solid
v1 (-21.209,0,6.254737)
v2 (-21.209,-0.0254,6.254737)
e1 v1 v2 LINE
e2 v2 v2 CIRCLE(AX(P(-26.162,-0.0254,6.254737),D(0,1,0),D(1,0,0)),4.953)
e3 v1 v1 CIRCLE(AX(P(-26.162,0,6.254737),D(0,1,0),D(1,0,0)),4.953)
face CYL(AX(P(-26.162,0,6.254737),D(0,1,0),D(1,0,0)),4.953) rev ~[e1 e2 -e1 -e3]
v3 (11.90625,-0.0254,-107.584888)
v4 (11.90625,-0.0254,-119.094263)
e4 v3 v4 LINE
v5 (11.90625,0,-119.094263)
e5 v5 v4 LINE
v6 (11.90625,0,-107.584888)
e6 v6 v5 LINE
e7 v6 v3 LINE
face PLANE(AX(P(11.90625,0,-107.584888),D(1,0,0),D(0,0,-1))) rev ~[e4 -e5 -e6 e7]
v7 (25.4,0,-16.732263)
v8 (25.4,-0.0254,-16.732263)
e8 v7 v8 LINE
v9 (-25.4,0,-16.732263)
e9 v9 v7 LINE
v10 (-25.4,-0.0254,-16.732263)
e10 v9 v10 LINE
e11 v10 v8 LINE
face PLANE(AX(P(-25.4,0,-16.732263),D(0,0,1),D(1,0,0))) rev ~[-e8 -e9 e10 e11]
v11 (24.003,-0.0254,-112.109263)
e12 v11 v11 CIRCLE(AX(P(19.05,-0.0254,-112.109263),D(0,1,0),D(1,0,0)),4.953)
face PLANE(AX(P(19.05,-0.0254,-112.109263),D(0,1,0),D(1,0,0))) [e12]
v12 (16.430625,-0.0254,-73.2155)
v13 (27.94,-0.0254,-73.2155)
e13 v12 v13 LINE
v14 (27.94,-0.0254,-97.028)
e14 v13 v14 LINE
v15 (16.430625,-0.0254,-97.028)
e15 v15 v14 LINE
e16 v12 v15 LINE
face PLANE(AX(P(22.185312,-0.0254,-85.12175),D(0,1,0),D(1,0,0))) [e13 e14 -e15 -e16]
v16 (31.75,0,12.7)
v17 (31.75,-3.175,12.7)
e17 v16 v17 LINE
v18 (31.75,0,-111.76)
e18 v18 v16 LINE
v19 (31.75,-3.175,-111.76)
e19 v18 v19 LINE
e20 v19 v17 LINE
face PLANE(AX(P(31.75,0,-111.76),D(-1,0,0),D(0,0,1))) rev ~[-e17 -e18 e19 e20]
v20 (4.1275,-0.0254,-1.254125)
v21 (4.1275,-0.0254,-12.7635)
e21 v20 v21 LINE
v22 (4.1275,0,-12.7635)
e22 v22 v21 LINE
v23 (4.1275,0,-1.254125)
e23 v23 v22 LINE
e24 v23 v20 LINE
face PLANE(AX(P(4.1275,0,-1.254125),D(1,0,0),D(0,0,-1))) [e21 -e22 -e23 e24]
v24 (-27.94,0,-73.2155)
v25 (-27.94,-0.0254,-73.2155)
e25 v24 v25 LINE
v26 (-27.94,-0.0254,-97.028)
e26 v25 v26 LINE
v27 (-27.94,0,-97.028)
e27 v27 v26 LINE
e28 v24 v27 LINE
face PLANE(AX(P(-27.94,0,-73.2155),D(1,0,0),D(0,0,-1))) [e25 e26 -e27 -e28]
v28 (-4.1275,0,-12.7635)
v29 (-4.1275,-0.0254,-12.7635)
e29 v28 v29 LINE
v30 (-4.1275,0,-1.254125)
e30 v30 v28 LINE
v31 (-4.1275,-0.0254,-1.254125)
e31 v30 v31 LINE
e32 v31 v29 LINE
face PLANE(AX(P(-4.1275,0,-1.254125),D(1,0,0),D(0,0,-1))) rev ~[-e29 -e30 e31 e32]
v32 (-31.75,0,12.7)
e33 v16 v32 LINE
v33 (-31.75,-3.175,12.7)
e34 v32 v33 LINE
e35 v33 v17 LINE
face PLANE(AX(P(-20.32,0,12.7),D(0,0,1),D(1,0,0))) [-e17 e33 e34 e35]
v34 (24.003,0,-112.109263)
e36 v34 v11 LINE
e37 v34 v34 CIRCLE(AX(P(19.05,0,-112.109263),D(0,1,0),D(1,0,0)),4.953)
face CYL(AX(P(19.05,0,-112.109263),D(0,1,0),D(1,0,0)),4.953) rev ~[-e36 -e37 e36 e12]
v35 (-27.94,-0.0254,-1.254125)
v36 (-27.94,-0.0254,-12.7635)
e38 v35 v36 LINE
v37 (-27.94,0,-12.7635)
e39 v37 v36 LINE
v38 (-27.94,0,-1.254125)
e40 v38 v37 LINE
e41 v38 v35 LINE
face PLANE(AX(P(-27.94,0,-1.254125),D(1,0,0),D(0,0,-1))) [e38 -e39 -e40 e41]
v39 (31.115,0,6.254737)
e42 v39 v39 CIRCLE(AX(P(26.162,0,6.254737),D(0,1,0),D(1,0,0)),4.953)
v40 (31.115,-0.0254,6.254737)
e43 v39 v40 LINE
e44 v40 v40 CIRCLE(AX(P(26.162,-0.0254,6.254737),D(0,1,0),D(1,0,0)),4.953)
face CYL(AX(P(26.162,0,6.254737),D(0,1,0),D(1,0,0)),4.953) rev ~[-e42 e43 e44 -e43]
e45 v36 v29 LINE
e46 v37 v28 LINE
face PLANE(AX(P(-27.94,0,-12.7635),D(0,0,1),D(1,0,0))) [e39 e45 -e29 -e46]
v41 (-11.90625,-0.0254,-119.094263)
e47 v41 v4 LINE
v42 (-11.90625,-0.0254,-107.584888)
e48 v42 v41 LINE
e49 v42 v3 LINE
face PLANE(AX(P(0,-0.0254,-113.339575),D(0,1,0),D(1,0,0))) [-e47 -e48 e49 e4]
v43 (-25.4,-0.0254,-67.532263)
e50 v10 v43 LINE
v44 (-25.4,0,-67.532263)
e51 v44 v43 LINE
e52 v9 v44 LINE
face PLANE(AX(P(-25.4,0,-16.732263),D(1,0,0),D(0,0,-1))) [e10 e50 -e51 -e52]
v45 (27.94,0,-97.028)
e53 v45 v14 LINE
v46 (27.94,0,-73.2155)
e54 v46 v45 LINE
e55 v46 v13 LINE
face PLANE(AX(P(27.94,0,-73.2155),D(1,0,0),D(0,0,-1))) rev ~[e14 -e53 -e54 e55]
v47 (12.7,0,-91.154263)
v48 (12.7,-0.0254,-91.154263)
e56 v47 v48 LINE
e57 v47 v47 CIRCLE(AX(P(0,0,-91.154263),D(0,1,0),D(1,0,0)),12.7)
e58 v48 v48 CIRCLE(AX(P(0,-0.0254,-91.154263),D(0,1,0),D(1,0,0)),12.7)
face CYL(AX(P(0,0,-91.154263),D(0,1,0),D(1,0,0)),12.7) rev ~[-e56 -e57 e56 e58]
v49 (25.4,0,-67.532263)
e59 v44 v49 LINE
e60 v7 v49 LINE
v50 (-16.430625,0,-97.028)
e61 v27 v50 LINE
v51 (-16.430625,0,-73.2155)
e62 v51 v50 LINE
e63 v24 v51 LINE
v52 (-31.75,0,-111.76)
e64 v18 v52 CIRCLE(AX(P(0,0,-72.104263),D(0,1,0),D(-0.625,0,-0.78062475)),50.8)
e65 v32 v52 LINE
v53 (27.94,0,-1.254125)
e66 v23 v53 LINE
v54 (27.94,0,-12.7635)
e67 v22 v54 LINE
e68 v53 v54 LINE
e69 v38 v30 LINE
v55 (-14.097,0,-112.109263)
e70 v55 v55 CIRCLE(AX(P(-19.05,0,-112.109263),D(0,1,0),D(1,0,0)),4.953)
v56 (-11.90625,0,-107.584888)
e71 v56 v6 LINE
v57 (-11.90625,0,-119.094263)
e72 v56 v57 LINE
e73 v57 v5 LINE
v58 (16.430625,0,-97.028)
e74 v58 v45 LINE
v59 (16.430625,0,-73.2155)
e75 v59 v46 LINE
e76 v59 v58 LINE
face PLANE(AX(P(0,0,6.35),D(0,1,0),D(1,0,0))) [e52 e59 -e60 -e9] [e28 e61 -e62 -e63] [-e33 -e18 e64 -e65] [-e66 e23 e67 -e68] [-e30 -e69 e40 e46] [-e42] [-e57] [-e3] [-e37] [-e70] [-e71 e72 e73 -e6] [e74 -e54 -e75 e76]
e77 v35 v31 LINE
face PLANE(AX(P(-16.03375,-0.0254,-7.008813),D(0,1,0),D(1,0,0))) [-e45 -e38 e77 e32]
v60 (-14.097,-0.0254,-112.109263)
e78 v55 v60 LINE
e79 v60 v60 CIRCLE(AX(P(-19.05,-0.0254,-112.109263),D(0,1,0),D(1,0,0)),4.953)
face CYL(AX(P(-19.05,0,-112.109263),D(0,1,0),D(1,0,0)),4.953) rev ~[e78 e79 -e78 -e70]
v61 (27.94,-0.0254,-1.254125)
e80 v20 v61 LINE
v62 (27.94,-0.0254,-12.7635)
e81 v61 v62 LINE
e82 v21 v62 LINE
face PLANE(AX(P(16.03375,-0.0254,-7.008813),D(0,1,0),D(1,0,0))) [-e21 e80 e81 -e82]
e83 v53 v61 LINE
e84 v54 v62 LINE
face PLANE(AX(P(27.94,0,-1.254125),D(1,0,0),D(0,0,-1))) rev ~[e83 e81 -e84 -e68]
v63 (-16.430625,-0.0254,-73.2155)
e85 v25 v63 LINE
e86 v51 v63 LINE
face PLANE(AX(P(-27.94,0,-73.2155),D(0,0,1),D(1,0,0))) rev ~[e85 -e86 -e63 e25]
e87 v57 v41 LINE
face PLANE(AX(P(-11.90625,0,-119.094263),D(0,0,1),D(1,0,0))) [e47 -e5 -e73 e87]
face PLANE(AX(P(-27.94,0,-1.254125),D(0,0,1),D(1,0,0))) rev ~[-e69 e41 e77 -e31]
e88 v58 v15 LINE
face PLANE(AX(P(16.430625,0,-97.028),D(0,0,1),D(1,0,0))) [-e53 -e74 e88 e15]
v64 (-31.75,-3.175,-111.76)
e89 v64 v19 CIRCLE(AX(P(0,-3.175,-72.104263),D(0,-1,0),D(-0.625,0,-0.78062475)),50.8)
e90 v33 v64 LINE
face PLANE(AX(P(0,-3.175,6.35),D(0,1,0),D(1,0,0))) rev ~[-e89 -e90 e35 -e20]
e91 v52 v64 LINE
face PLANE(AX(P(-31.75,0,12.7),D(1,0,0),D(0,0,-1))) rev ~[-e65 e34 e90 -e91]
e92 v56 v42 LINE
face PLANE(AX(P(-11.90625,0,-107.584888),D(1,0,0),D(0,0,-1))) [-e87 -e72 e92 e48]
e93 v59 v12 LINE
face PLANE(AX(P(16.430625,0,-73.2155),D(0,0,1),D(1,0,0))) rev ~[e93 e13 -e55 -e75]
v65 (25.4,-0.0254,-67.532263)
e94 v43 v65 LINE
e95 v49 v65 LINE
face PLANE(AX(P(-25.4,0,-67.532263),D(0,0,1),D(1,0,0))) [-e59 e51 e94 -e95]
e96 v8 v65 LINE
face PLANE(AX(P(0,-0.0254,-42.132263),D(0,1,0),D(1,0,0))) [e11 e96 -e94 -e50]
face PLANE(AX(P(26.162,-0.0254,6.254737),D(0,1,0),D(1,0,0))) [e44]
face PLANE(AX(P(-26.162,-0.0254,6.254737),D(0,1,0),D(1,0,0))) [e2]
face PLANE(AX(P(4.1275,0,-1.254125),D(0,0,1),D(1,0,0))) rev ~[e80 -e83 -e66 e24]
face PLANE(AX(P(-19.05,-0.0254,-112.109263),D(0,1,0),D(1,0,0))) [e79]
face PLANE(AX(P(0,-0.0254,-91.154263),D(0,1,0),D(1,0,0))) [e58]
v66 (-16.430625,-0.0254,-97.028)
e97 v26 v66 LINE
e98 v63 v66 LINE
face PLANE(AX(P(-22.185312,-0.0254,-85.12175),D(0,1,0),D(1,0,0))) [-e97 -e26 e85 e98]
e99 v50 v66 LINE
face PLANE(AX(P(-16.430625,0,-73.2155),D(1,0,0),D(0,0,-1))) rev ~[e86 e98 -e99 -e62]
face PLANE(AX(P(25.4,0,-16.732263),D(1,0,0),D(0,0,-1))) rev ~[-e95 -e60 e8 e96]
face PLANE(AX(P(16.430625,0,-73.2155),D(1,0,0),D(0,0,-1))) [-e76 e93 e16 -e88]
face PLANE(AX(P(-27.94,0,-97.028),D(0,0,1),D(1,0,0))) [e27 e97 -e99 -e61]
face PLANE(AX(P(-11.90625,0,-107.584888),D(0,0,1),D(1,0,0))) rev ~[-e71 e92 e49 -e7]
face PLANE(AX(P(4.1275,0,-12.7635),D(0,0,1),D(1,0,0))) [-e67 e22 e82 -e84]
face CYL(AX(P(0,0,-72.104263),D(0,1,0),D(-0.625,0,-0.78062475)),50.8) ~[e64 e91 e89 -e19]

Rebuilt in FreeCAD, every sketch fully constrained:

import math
import FreeCAD as App
import Part
import Sketcher
from FreeCAD import Vector
Q = App.Units.Quantity


def add_polygon(sketch, points):
    """Adds a closed chain of lines whose ends are joined by coincident constraints."""
    first, n = sketch.GeometryCount, len(points)
    for a, b in zip(points, points[1:] + points[:1]):
        sketch.addGeometry(Part.LineSegment(App.Vector(*a, 0), App.Vector(*b, 0)), False)
    for i in range(n):
        sketch.addConstraint(Sketcher.Constraint("Coincident", first + i, 2, first + (i + 1) % n, 1))

doc = App.newDocument("Part")
body = doc.addObject("PartDesign::Body", "Body")

# Sketch on XZ plane
sketch1 = body.newObject("Sketcher::SketchObject", "Sketch")
sketch1.AttachmentSupport = (doc.getObject("XZ_Plane"), [""])
sketch1.MapMode = "FlatFace"
sketch1.addGeometry([
    Part.LineSegment(Vector(-32, 0, 0), Vector(32, 0, 0)),
    Part.LineSegment(Vector(32, 0, 0), Vector(32, -112, 0)),
    Part.ArcOfCircle(Part.Circle(Vector(0, -72, 0), Vector(0, 0, 1), 51), math.radians(-129), math.radians(-51)),
    Part.LineSegment(Vector(-32, -112, 0), Vector(-32, 0, 0)),
], False)
sketch1.addConstraint([
    Sketcher.Constraint("Coincident", 0, 2, 1, 1),
    Sketcher.Constraint("Coincident", 1, 2, 2, 2),
    Sketcher.Constraint("Coincident", 2, 1, 3, 1),
    Sketcher.Constraint("Coincident", 3, 2, 0, 1),
    Sketcher.Constraint("Horizontal", 0),
    Sketcher.Constraint("Vertical", 1),
    Sketcher.Constraint("Vertical", 3),
    Sketcher.Constraint("Symmetric", 0, 2, 3, 2, -1, 1),
    Sketcher.Constraint("PointOnObject", 2, 3, -2),
    Sketcher.Constraint("Radius", 2, Q("2 in")),
    Sketcher.Constraint("DistanceX", 0, 1, 0, 2, Q("2.5 in")),
    Sketcher.Constraint("DistanceY", 1, 2, 1, 1, Q("4.4 in")),
])
pad1 = body.newObject("PartDesign::Pad", "Pad")
pad1.Profile = sketch1
pad1.Length = Q("0.5 in")
pad1.Reversed = True

# Sketch on YZ plane
sketch2 = body.newObject("Sketcher::SketchObject", "Sketch001")
sketch2.AttachmentSupport = (doc.getObject("YZ_Plane"), [""])
sketch2.MapMode = "FlatFace"
sketch2.AttachmentOffset = App.Placement(Vector(0, 0, -1.25 * 25.4), App.Rotation())
sketch2.addGeometry([
    Part.LineSegment(Vector(0, 0, 0), Vector(0, 13, 0)),
    Part.ArcOfCircle(Part.Circle(Vector(13, 13, 0), Vector(0, 0, 1), 13), math.radians(-90), math.radians(180)),
    Part.LineSegment(Vector(13, 0, 0), Vector(0, 0, 0)),
], False)
sketch2.addConstraint([
    Sketcher.Constraint("Tangent", 0, 2, 1, 2),
    Sketcher.Constraint("Tangent", 1, 1, 2, 1),
    Sketcher.Constraint("Coincident", 2, 2, 0, 1),
    Sketcher.Constraint("Vertical", 0),
    Sketcher.Constraint("Horizontal", 2),
    Sketcher.Constraint("Coincident", 2, 2, -1, 1),
    Sketcher.Constraint("Radius", 1, Q("0.5 in")),
])
pad2 = body.newObject("PartDesign::Pad", "Pad001")
pad2.Profile = sketch2
pad2.Length = Q("0.45 in")
doc.recompute()

mirrored = body.newObject("PartDesign::Mirrored", "Mirrored")
mirrored.Originals = [pad2]
mirrored.MirrorPlane = (doc.getObject("YZ_Plane"), [""])
body.Tip = mirrored

# Sketch on XZ plane
sketch3 = body.newObject("Sketcher::SketchObject", "Sketch002")
sketch3.AttachmentSupport = (doc.getObject("XZ_Plane"), [""])
sketch3.MapMode = "FlatFace"
sketch3.addGeometry([
    Part.LineSegment(Vector(20, 0, 0), Vector(-20, 0, 0)),  # 0
    Part.LineSegment(Vector(-20, 0, 0), Vector(-20, 13, 0)),  # 1
    Part.LineSegment(Vector(-20, 13, 0), Vector(-32, 13, 0)),  # 2
    Part.LineSegment(Vector(-32, 13, 0), Vector(-32, -112, 0)),  # 3
    Part.ArcOfCircle(Part.Circle(Vector(0, -72, 0), Vector(0, 0, 1), 51), math.radians(-129), math.radians(-51)),  # 4
    Part.LineSegment(Vector(32, -112, 0), Vector(32, 13, 0)),  # 5
    Part.LineSegment(Vector(32, 13, 0), Vector(20, 13, 0)),  # 6
    Part.LineSegment(Vector(20, 13, 0), Vector(20, 0, 0)),  # 7
], False)
sketch3.addConstraint([
    Sketcher.Constraint("Coincident", 0, 2, 1, 1),
    Sketcher.Constraint("Coincident", 1, 2, 2, 1),
    Sketcher.Constraint("Coincident", 2, 2, 3, 1),
    Sketcher.Constraint("Coincident", 3, 2, 4, 1),
    Sketcher.Constraint("Coincident", 4, 2, 5, 1),
    Sketcher.Constraint("Coincident", 5, 2, 6, 1),
    Sketcher.Constraint("Coincident", 6, 2, 7, 1),
    Sketcher.Constraint("Coincident", 7, 2, 0, 1),
    Sketcher.Constraint("Horizontal", 0),
    Sketcher.Constraint("Vertical", 1),
    Sketcher.Constraint("Horizontal", 2),
    Sketcher.Constraint("Vertical", 3),
    Sketcher.Constraint("Vertical", 5),
    Sketcher.Constraint("Horizontal", 6),
    Sketcher.Constraint("Vertical", 7),
    Sketcher.Constraint("Symmetric", 0, 2, 7, 2, -1, 1),
    Sketcher.Constraint("Symmetric", 3, 2, 4, 2, -2),
    Sketcher.Constraint("Horizontal", 2, 2, 5, 2),
    Sketcher.Constraint("Radius", 4, Q("2 in")),
    Sketcher.Constraint("DistanceX", 0, 2, 0, 1, Q("1.6 in")),
    Sketcher.Constraint("DistanceY", 1, 1, 1, 2, Q("0.5 in")),
    Sketcher.Constraint("DistanceY", 3, 2, 3, 1, Q("4.9 in")),
    Sketcher.Constraint("DistanceX", 2, 2, 2, 1, Q("0.45 in")),
])
pad3 = body.newObject("PartDesign::Pad", "Pad002")
pad3.Profile = sketch3
pad3.Length = Q("0.125 in")

# Sketch on XZ plane
sketch4 = body.newObject("Sketcher::SketchObject", "Sketch003")
sketch4.AttachmentSupport = (doc.getObject("XZ_Plane"), [""])
sketch4.MapMode = "FlatFace"
add_polygon(sketch4, [(39, -172), (39, 31), (-63, 31), (-63, -172)])  # lines 0-3
sketch4.addConstraint([
    Sketcher.Constraint("Vertical", 0),
    Sketcher.Constraint("Horizontal", 1),
    Sketcher.Constraint("Vertical", 2),
    Sketcher.Constraint("Horizontal", 3),
    Sketcher.Constraint("DistanceX", 1, 2, 1, 1, Q("4 in")),
    Sketcher.Constraint("DistanceY", 0, 1, 0, 2, Q("8 in")),
    Sketcher.Constraint("DistanceX", -1, 1, 0, 2, Q("38.791795 mm")),
    Sketcher.Constraint("DistanceY", -1, 1, 0, 2, Q("31.280453 mm")),
])
pocket1 = body.newObject("PartDesign::Pocket", "Pocket")
pocket1.Profile = sketch4
pocket1.Type = "ThroughAll"

# Sketch on XZ plane
sketch5 = body.newObject("Sketcher::SketchObject", "Sketch004")
sketch5.AttachmentSupport = (doc.getObject("XZ_Plane"), [""])
sketch5.MapMode = "FlatFace"
add_polygon(sketch5, [(-20, 0), (-20, 13), (20, 13), (20, 0)])  # lines 0-3
sketch5.addConstraint([
    Sketcher.Constraint("Vertical", 0),
    Sketcher.Constraint("Horizontal", 1),
    Sketcher.Constraint("Vertical", 2),
    Sketcher.Constraint("Horizontal", 3),
    Sketcher.Constraint("Symmetric", 2, 2, 3, 2, -1, 1),
    Sketcher.Constraint("DistanceX", 1, 1, 1, 2, Q("1.6 in")),
    Sketcher.Constraint("DistanceY", 0, 1, 0, 2, Q("0.5 in")),
])
pad4 = body.newObject("PartDesign::Pad", "Pad003")
pad4.Profile = sketch5
pad4.Length = Q("0.125 in")

# Sketch on XZ plane
sketch6 = body.newObject("Sketcher::SketchObject", "Sketch005")
sketch6.AttachmentSupport = (doc.getObject("XZ_Plane"), [""])
sketch6.MapMode = "FlatFace"
sketch6.addGeometry(Part.Circle(Vector(19.1, -112.1, 0), Vector(0, 0, 1), 5), False)  # 0
sketch6.addGeometry(Part.Circle(Vector(-19.1, -112.1, 0), Vector(0, 0, 1), 5), False)  # 1
sketch6.addGeometry(Part.Circle(Vector(26.2, 6.3, 0), Vector(0, 0, 1), 5), False)  # 2
sketch6.addGeometry(Part.Circle(Vector(-26.2, 6.3, 0), Vector(0, 0, 1), 5), False)  # 3
sketch6.addGeometry(Part.Circle(Vector(0, -91.2, 0), Vector(0, 0, 1), 12.7), False)  # 4
add_polygon(sketch6, [(-25.4, -67.5), (-25.4, -16.7), (25.4, -16.7), (25.4, -67.5)])  # lines 5-8
sketch6.addConstraint([
    Sketcher.Constraint("Vertical", 5),
    Sketcher.Constraint("Horizontal", 6),
    Sketcher.Constraint("Vertical", 7),
    Sketcher.Constraint("Horizontal", 8),
    Sketcher.Constraint("Equal", 0, 1),
    Sketcher.Constraint("Equal", 1, 2),
    Sketcher.Constraint("Equal", 2, 3),
    Sketcher.Constraint("Symmetric", 0, 3, 1, 3, -2),
    Sketcher.Constraint("Symmetric", 2, 3, 3, 3, -2),
    Sketcher.Constraint("PointOnObject", 4, 3, -2),
    Sketcher.Constraint("Equal", 8, 5),
    Sketcher.Constraint("Diameter", 4, Q("1 in")),
    Sketcher.Constraint("Diameter", 0, Q("0.39 in")),
    Sketcher.Constraint("DistanceX", 6, 1, 6, 2, Q("2 in")),
    Sketcher.Constraint("DistanceX", 5, 2, -1, 1, Q("1 in")),
    Sketcher.Constraint("DistanceX", 1, 3, 0, 3, Q("1.5 in")),
    Sketcher.Constraint("DistanceX", -1, 1, 2, 3, Q("1.03 in")),
    Sketcher.Constraint("DistanceY", 0, 3, 2, 3, Q("4.66 in")),
    Sketcher.Constraint("DistanceY", 4, 3, 5, 2, Q("2.93 in")),
    Sketcher.Constraint("DistanceY", 0, 3, 4, 3, Q("0.825 in")),
    Sketcher.Constraint("DistanceY", 0, 3, -1, 1, Q("112.109263 mm")),
])
pocket2 = body.newObject("PartDesign::Pocket", "Pocket001")
pocket2.Profile = sketch6
pocket2.Length = Q("0.001 in")
pocket2.Reversed = True

# Sketch on XZ plane
sketch7 = body.newObject("Sketcher::SketchObject", "Sketch006")
sketch7.AttachmentSupport = (doc.getObject("XZ_Plane"), [""])
sketch7.MapMode = "FlatFace"
add_polygon(sketch7, [(-28, -13), (-28, -1), (-4, -1), (-4, -13)])  # lines 0-3
add_polygon(sketch7, [(16, -97), (16, -73), (28, -73), (28, -97)])  # lines 4-7
add_polygon(sketch7, [(4, -13), (4, -1), (28, -1), (28, -13)])  # lines 8-11
add_polygon(sketch7, [(-12, -119), (-12, -108), (12, -108), (12, -119)])  # lines 12-15
add_polygon(sketch7, [(-28, -97), (-28, -73), (-16, -73), (-16, -97)])  # lines 16-19
sketch7.addConstraint([
    Sketcher.Constraint("Vertical", 0),
    Sketcher.Constraint("Horizontal", 1),
    Sketcher.Constraint("Vertical", 2),
    Sketcher.Constraint("Horizontal", 3),
    Sketcher.Constraint("Vertical", 4),
    Sketcher.Constraint("Horizontal", 5),
    Sketcher.Constraint("Vertical", 6),
    Sketcher.Constraint("Horizontal", 7),
    Sketcher.Constraint("Vertical", 8),
    Sketcher.Constraint("Horizontal", 9),
    Sketcher.Constraint("Vertical", 10),
    Sketcher.Constraint("Horizontal", 11),
    Sketcher.Constraint("Vertical", 12),
    Sketcher.Constraint("Horizontal", 13),
    Sketcher.Constraint("Vertical", 14),
    Sketcher.Constraint("Horizontal", 15),
    Sketcher.Constraint("Vertical", 16),
    Sketcher.Constraint("Horizontal", 17),
    Sketcher.Constraint("Vertical", 18),
    Sketcher.Constraint("Horizontal", 19),
    Sketcher.Constraint("Symmetric", 1, 2, 8, 2, -2),
    Sketcher.Constraint("Symmetric", 3, 2, 10, 2, -2),
    Sketcher.Constraint("Symmetric", 5, 2, 16, 2, -2),
    Sketcher.Constraint("Symmetric", 7, 2, 18, 2, -2),
    Sketcher.Constraint("Vertical", 6, 2, 9, 2),
    Sketcher.Constraint("Equal", 11, 13),
    Sketcher.Constraint("Equal", 19, 0),
    Sketcher.Constraint("Equal", 15, 4),
    Sketcher.Constraint("Equal", 10, 12),
    Sketcher.Constraint("DistanceX", 0, 2, -1, 1, Q("1.1 in")),
    Sketcher.Constraint("DistanceX", 1, 1, 1, 2, Q("0.9375 in")),
    Sketcher.Constraint("DistanceX", 5, 1, 5, 2, Q("0.453125 in")),
    Sketcher.Constraint("DistanceY", 6, 2, -1, 1, Q("3.82 in")),
    Sketcher.Constraint("DistanceY", 4, 2, 2, 2, Q("2.38 in")),
    Sketcher.Constraint("DistanceX", 12, 2, -1, 1, Q("0.46875 in")),
    Sketcher.Constraint("DistanceY", 12, 2, -1, 1, Q("107.584888 mm")),
])
pocket3 = body.newObject("PartDesign::Pocket", "Pocket002")
pocket3.Profile = sketch7
pocket3.Length = Q("0.001 in")
pocket3.Reversed = True

doc.recompute()
